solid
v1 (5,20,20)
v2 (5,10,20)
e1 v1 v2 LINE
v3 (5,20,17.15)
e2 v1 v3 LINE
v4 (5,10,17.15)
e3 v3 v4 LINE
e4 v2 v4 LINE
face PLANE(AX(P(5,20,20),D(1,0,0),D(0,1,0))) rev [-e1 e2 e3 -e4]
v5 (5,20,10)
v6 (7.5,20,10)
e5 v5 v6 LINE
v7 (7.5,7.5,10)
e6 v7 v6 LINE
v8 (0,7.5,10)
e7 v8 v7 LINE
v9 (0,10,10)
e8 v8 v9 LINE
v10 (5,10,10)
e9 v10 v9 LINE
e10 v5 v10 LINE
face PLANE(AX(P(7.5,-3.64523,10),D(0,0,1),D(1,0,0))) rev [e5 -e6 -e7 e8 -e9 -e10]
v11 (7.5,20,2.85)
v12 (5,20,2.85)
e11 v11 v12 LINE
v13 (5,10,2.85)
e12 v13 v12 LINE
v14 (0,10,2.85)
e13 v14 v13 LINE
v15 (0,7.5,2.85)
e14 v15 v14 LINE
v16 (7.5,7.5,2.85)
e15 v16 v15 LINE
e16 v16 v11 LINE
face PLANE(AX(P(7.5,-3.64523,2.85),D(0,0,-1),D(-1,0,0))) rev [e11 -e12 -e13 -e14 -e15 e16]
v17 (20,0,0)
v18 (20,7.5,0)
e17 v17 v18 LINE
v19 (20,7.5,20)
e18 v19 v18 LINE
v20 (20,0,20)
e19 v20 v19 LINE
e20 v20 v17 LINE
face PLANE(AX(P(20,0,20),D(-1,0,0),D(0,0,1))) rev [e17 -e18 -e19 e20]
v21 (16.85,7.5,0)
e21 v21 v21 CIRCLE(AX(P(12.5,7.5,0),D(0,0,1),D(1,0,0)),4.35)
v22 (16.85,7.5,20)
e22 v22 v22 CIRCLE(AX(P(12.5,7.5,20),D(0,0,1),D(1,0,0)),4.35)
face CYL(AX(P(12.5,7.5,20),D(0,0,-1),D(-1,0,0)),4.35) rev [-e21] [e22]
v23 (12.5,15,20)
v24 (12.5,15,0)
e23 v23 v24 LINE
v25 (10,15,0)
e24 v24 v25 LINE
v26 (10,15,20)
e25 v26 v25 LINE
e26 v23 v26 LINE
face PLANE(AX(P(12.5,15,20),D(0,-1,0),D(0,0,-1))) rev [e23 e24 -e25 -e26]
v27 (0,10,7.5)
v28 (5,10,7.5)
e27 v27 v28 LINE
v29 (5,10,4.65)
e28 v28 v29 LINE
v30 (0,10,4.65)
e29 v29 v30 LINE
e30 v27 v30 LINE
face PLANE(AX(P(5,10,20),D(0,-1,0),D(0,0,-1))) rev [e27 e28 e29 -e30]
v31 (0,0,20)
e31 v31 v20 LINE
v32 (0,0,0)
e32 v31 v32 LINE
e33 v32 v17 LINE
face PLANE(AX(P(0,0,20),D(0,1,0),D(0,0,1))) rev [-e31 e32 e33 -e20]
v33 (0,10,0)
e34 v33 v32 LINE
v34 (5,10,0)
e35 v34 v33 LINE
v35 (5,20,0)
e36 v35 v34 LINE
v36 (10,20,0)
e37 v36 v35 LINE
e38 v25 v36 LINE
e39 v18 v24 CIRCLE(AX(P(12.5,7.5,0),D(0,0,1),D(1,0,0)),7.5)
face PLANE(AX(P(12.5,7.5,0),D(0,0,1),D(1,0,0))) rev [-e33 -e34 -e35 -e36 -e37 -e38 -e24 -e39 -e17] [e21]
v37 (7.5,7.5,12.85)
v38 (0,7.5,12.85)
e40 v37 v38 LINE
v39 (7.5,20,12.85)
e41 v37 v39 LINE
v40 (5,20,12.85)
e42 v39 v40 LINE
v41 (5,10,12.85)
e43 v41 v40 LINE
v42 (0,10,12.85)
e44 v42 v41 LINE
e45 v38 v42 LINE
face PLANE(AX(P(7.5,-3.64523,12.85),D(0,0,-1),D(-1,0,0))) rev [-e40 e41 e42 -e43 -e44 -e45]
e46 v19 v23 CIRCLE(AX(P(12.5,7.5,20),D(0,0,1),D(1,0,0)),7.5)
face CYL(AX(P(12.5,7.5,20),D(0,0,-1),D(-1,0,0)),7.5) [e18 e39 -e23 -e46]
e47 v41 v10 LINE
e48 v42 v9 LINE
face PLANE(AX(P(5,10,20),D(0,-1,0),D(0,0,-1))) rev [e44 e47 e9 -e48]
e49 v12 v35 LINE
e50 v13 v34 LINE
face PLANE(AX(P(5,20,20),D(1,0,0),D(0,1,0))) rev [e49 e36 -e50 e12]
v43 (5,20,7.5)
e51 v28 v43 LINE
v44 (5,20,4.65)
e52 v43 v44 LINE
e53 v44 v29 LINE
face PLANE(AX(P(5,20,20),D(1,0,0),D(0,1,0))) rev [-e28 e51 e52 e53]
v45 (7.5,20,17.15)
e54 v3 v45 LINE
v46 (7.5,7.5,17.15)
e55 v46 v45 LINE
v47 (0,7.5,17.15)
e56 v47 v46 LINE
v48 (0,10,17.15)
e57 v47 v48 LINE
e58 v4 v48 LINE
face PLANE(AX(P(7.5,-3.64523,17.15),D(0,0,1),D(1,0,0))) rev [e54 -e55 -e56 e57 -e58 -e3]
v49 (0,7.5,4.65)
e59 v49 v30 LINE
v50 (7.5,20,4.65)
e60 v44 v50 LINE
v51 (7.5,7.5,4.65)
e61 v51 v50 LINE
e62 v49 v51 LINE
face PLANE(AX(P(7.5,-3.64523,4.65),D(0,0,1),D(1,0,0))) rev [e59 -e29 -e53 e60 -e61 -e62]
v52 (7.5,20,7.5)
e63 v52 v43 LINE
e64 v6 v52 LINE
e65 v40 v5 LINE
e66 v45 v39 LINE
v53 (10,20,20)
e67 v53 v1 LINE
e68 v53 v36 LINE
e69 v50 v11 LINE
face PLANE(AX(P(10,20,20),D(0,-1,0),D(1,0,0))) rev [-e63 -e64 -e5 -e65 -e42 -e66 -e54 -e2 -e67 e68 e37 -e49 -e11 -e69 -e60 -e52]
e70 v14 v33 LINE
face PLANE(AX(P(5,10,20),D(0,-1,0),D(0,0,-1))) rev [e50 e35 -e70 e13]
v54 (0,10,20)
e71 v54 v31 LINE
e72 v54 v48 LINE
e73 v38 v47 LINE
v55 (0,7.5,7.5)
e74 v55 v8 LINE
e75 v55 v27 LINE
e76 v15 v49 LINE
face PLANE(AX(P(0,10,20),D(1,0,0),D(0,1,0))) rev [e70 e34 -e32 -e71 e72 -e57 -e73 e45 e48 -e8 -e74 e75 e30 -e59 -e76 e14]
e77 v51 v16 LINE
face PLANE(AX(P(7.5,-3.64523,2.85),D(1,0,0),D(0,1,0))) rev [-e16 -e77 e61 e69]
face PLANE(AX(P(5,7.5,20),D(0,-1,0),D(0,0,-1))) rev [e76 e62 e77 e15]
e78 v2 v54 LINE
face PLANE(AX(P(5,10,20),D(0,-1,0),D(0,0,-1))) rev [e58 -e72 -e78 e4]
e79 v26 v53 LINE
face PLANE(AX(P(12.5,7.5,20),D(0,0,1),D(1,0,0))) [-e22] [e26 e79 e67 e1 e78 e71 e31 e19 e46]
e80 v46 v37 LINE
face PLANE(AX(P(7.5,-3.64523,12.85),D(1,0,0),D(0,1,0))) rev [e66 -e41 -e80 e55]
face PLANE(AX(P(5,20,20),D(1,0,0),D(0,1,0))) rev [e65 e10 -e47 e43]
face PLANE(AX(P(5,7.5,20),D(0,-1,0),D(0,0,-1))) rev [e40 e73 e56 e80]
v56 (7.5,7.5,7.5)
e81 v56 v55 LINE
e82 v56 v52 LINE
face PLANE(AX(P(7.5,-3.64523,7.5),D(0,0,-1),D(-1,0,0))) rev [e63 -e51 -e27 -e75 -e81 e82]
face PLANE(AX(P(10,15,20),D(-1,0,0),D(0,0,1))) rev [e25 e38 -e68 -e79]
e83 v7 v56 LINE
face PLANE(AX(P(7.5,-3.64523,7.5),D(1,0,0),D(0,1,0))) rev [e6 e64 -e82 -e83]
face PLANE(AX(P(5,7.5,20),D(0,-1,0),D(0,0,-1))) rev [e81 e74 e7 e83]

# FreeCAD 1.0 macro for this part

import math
import FreeCAD as App
import Part
import Sketcher

V = App.Vector

doc = App.newDocument("Part")
body = doc.addObject("PartDesign::Body", "Body")

sketch1 = doc.addObject("Sketcher::SketchObject", "Sketch")
body.addObject(sketch1)
sketch1.AttachmentSupport = (doc.XY_Plane, [""])
sketch1.MapMode = "FlatFace"
sketch1.addGeometry(Part.LineSegment(V(0, 0, 0), V(20, 0, 0)), False)
sketch1.addGeometry(Part.LineSegment(V(20, 0, 0), V(20, 7.5, 0)), False)
sketch1.addGeometry(Part.ArcOfCircle(Part.Circle(V(12.5, 7.5, 0), V(0, 0, 1), 7.5), math.radians(0), math.radians(90)), False)
sketch1.addGeometry(Part.LineSegment(V(12.5, 15, 0), V(10, 15, 0)), False)
sketch1.addGeometry(Part.LineSegment(V(10, 15, 0), V(10, 20, 0)), False)
sketch1.addGeometry(Part.LineSegment(V(10, 20, 0), V(5, 20, 0)), False)
sketch1.addGeometry(Part.LineSegment(V(5, 20, 0), V(5, 10, 0)), False)
sketch1.addGeometry(Part.LineSegment(V(5, 10, 0), V(0, 10, 0)), False)
sketch1.addGeometry(Part.LineSegment(V(0, 10, 0), V(0, 0, 0)), False)
sketch1.addGeometry(Part.Circle(V(12.5, 7.5, 0), V(0, 0, 1), 4.3), False)
sketch1.addConstraint(Sketcher.Constraint("Coincident", 0, 2, 1, 1))
sketch1.addConstraint(Sketcher.Constraint("Tangent", 1, 2, 2, 1))
sketch1.addConstraint(Sketcher.Constraint("Tangent", 2, 2, 3, 1))
sketch1.addConstraint(Sketcher.Constraint("Coincident", 3, 2, 4, 1))
sketch1.addConstraint(Sketcher.Constraint("Coincident", 4, 2, 5, 1))
sketch1.addConstraint(Sketcher.Constraint("Coincident", 5, 2, 6, 1))
sketch1.addConstraint(Sketcher.Constraint("Coincident", 6, 2, 7, 1))
sketch1.addConstraint(Sketcher.Constraint("Coincident", 7, 2, 8, 1))
sketch1.addConstraint(Sketcher.Constraint("Coincident", 8, 2, 0, 1))
sketch1.addConstraint(Sketcher.Constraint("Horizontal", 0))
sketch1.addConstraint(Sketcher.Constraint("Vertical", 1))
sketch1.addConstraint(Sketcher.Constraint("Horizontal", 3))
sketch1.addConstraint(Sketcher.Constraint("Vertical", 4))
sketch1.addConstraint(Sketcher.Constraint("Horizontal", 5))
sketch1.addConstraint(Sketcher.Constraint("Vertical", 6))
sketch1.addConstraint(Sketcher.Constraint("Horizontal", 7))
sketch1.addConstraint(Sketcher.Constraint("Vertical", 8))
sketch1.addConstraint(Sketcher.Constraint("Coincident", 8, 2, -1, 1))
sketch1.addConstraint(Sketcher.Constraint("Coincident", 9, 3, 2, 3))
sketch1.addConstraint(Sketcher.Constraint("Equal", 5, 7))
sketch1.addConstraint(Sketcher.Constraint("Equal", 7, 4))
sketch1.addConstraint(Sketcher.Constraint("Equal", 6, 8))
sketch1.addConstraint(Sketcher.Constraint("Diameter", 9, 8.7))
sketch1.addConstraint(Sketcher.Constraint("Radius", 2, 7.5))
sketch1.addConstraint(Sketcher.Constraint("DistanceX", 0, 1, 0, 2, 20.0))
sketch1.addConstraint(Sketcher.Constraint("DistanceX", 5, 2, 5, 1, 5.0))
sketch1.addConstraint(Sketcher.Constraint("DistanceY", 6, 2, 6, 1, 10.0))
pad1 = doc.addObject("PartDesign::Pad", "Pad")
body.addObject(pad1)
pad1.Profile = sketch1
pad1.Length = 20

sketch2 = doc.addObject("Sketcher::SketchObject", "Sketch001")
body.addObject(sketch2)
sketch2.AttachmentSupport = (doc.XZ_Plane, [""])
sketch2.MapMode = "FlatFace"
sketch2.AttachmentOffset = App.Placement(V(0, 0, -20), App.Rotation())
sketch2.addGeometry(Part.LineSegment(V(0, 2.9, 0), V(0, 4.7, 0)), False)
sketch2.addGeometry(Part.LineSegment(V(0, 4.7, 0), V(7.5, 4.7, 0)), False)
sketch2.addGeometry(Part.LineSegment(V(7.5, 4.7, 0), V(7.5, 2.9, 0)), False)
sketch2.addGeometry(Part.LineSegment(V(7.5, 2.9, 0), V(0, 2.9, 0)), False)
sketch2.addGeometry(Part.LineSegment(V(0, 7.5, 0), V(0, 10, 0)), False)
sketch2.addGeometry(Part.LineSegment(V(0, 10, 0), V(7.5, 10, 0)), False)
sketch2.addGeometry(Part.LineSegment(V(7.5, 10, 0), V(7.5, 7.5, 0)), False)
sketch2.addGeometry(Part.LineSegment(V(7.5, 7.5, 0), V(0, 7.5, 0)), False)
sketch2.addGeometry(Part.LineSegment(V(0, 12.8, 0), V(0, 17.1, 0)), False)
sketch2.addGeometry(Part.LineSegment(V(0, 17.1, 0), V(7.5, 17.1, 0)), False)
sketch2.addGeometry(Part.LineSegment(V(7.5, 17.1, 0), V(7.5, 12.8, 0)), False)
sketch2.addGeometry(Part.LineSegment(V(7.5, 12.8, 0), V(0, 12.8, 0)), False)
sketch2.addConstraint(Sketcher.Constraint("Coincident", 0, 2, 1, 1))
sketch2.addConstraint(Sketcher.Constraint("Coincident", 1, 2, 2, 1))
sketch2.addConstraint(Sketcher.Constraint("Coincident", 2, 2, 3, 1))
sketch2.addConstraint(Sketcher.Constraint("Coincident", 3, 2, 0, 1))
sketch2.addConstraint(Sketcher.Constraint("Coincident", 4, 2, 5, 1))
sketch2.addConstraint(Sketcher.Constraint("Coincident", 5, 2, 6, 1))
sketch2.addConstraint(Sketcher.Constraint("Coincident", 6, 2, 7, 1))
sketch2.addConstraint(Sketcher.Constraint("Coincident", 7, 2, 4, 1))
sketch2.addConstraint(Sketcher.Constraint("Coincident", 8, 2, 9, 1))
sketch2.addConstraint(Sketcher.Constraint("Coincident", 9, 2, 10, 1))
sketch2.addConstraint(Sketcher.Constraint("Coincident", 10, 2, 11, 1))
sketch2.addConstraint(Sketcher.Constraint("Coincident", 11, 2, 8, 1))
sketch2.addConstraint(Sketcher.Constraint("Vertical", 0))
sketch2.addConstraint(Sketcher.Constraint("Horizontal", 1))
sketch2.addConstraint(Sketcher.Constraint("Vertical", 2))
sketch2.addConstraint(Sketcher.Constraint("Horizontal", 3))
sketch2.addConstraint(Sketcher.Constraint("Vertical", 4))
sketch2.addConstraint(Sketcher.Constraint("Horizontal", 5))
sketch2.addConstraint(Sketcher.Constraint("Vertical", 6))
sketch2.addConstraint(Sketcher.Constraint("Horizontal", 7))
sketch2.addConstraint(Sketcher.Constraint("Vertical", 8))
sketch2.addConstraint(Sketcher.Constraint("Horizontal", 9))
sketch2.addConstraint(Sketcher.Constraint("Vertical", 10))
sketch2.addConstraint(Sketcher.Constraint("Horizontal", 11))
sketch2.addConstraint(Sketcher.Constraint("PointOnObject", 0, 2, -2))
sketch2.addConstraint(Sketcher.Constraint("PointOnObject", 4, 2, -2))
sketch2.addConstraint(Sketcher.Constraint("PointOnObject", 8, 2, -2))
sketch2.addConstraint(Sketcher.Constraint("Vertical", 2, 2, 5, 2))
sketch2.addConstraint(Sketcher.Constraint("Vertical", 6, 2, 9, 2))
sketch2.addConstraint(Sketcher.Constraint("DistanceX", 1, 1, 1, 2, 7.5))
sketch2.addConstraint(Sketcher.Constraint("DistanceY", 0, 1, 0, 2, 1.8))
sketch2.addConstraint(Sketcher.Constraint("DistanceY", 4, 1, 4, 2, 2.5))
sketch2.addConstraint(Sketcher.Constraint("DistanceY", 8, 1, 8, 2, 4.3))
sketch2.addConstraint(Sketcher.Constraint("DistanceY", -1, 1, 4, 2, 10.0))
sketch2.addConstraint(Sketcher.Constraint("DistanceY", 0, 2, 8, 2, 12.5))
sketch2.addConstraint(Sketcher.Constraint("DistanceY", -1, 1, 0, 2, 4.65))
pocket1 = doc.addObject("PartDesign::Pocket", "Pocket")
body.addObject(pocket1)
pocket1.Profile = sketch2
pocket1.Length = 12.5
pocket1.Reversed = True

doc.recompute()
